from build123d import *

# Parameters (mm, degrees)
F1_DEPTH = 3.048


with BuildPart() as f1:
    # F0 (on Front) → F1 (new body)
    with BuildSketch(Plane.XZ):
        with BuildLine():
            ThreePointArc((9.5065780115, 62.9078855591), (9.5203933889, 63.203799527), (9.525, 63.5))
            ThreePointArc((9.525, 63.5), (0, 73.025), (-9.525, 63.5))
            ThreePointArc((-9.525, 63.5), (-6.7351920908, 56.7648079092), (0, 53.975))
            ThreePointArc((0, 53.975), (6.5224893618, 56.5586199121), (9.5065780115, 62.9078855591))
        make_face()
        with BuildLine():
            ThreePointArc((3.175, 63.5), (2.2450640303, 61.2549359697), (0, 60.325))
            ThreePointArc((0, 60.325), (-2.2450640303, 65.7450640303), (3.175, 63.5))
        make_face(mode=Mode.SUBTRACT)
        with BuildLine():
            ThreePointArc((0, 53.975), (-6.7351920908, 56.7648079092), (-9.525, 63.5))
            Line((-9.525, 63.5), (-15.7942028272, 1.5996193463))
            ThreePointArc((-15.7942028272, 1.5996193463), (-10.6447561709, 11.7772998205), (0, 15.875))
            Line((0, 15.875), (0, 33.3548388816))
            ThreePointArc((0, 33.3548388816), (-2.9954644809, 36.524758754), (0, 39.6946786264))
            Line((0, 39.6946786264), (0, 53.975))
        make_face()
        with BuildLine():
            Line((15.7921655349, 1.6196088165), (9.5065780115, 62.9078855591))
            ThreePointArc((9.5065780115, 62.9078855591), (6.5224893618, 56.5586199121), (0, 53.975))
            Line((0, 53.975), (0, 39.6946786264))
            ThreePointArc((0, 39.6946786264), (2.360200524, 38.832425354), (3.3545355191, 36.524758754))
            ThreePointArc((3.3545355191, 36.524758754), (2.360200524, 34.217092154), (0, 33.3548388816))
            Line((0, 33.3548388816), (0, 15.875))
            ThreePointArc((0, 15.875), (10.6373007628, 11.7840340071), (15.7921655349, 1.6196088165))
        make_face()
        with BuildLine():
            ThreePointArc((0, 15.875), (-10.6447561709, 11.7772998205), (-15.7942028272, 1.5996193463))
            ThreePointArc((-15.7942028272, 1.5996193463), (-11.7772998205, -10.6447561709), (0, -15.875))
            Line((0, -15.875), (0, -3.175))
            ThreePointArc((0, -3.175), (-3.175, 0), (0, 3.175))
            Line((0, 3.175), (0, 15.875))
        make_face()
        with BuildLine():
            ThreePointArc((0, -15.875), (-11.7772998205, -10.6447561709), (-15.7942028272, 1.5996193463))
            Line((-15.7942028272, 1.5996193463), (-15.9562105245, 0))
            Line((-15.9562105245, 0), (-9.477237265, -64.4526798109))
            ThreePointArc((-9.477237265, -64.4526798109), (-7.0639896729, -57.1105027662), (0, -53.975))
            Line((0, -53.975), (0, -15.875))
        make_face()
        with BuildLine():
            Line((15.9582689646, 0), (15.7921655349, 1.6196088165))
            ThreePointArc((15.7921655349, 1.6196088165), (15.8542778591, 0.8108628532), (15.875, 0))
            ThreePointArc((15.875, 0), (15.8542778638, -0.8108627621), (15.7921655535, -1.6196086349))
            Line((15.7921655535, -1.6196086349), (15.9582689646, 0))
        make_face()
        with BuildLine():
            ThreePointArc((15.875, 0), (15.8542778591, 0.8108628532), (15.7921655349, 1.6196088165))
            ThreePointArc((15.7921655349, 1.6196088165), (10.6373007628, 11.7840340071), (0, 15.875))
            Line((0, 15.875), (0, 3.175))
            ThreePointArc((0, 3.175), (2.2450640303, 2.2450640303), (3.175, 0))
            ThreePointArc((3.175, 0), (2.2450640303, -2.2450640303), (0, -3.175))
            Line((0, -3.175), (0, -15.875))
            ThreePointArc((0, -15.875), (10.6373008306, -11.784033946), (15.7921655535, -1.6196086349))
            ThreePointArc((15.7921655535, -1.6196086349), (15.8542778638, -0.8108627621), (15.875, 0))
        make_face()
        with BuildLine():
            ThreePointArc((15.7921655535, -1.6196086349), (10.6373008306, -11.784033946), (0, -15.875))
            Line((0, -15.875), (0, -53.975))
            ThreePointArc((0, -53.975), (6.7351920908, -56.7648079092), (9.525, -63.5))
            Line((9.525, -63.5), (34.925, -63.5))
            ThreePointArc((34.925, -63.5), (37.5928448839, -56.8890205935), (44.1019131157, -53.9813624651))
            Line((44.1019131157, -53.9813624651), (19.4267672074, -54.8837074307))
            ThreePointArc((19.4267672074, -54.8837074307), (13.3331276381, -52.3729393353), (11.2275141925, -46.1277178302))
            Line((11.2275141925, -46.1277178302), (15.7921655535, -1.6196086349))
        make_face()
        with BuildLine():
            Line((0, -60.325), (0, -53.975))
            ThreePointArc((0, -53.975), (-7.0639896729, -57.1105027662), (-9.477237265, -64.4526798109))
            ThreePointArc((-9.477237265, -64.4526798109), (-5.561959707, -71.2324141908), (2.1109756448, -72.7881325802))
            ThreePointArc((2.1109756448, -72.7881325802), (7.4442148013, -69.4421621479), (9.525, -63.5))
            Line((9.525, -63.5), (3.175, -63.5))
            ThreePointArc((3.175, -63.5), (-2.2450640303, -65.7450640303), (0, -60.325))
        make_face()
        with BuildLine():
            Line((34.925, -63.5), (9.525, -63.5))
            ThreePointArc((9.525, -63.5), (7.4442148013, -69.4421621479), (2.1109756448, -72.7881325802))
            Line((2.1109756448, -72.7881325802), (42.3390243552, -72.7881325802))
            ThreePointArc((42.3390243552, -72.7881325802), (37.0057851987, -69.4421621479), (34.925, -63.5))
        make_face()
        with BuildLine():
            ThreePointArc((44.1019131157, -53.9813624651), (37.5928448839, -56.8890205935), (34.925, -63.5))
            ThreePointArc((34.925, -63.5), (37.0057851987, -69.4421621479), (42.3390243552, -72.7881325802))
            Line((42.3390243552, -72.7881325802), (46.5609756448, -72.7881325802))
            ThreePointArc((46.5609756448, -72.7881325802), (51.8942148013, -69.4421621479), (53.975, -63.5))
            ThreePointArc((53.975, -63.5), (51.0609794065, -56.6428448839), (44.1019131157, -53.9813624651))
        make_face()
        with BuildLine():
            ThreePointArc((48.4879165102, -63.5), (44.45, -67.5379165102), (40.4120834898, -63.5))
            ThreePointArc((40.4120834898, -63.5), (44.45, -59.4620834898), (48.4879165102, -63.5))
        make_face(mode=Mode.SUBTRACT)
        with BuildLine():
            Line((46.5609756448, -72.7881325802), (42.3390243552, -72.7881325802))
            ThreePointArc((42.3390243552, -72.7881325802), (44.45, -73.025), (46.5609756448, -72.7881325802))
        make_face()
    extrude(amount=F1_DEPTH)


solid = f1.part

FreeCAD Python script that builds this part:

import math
import FreeCAD as App
import Part
import Sketcher

V = App.Vector
Q = App.Units.Quantity

doc = App.newDocument("Part")
body = doc.addObject("PartDesign::Body", "Body")

# Sketch on XZ plane
sketch1 = doc.addObject("Sketcher::SketchObject", "Sketch")
body.addObject(sketch1)
sketch1.AttachmentSupport = (doc.XZ_Plane, [""])
sketch1.MapMode = "FlatFace"
sketch1.addGeometry([
    Part.LineSegment(V(-16, 0, 0), V(-9.5, -64.5, 0)),  # 0
    Part.ArcOfCircle(Part.Circle(V(0, -63.5, 0), V(0, 0, 1), 9.5), math.radians(-174), math.radians(-77)),  # 1
    Part.LineSegment(V(2.1, -72.8, 0), V(42.3, -72.8, 0)),  # 2
    Part.ArcOfCircle(Part.Circle(V(44.5, -63.5, 0), V(0, 0, 1), 9.5), math.radians(-103), math.radians(-77)),  # 3
    Part.ArcOfCircle(Part.Circle(V(44.5, -63.5, 0), V(0, 0, 1), 9.5), math.radians(-77), math.radians(0)),  # 4
    Part.ArcOfCircle(Part.Circle(V(44.5, -63.5, 0), V(0, 0, 1), 9.5), math.radians(0), math.radians(92)),  # 5
    Part.LineSegment(V(44.1, -54, 0), V(19.4, -54.9, 0)),  # 6
    Part.ArcOfCircle(Part.Circle(V(19.1, -46.9, 0), V(0, 0, 1), 8), math.radians(174), math.radians(272)),  # 7
    Part.LineSegment(V(11.2, -46.1, 0), V(15.8, -1.6, 0)),  # 8
    Part.LineSegment(V(15.8, -1.6, 0), V(16, 0, 0)),  # 9
    Part.LineSegment(V(16, 0, 0), V(15.8, 1.6, 0)),  # 10
    Part.LineSegment(V(15.8, 1.6, 0), V(9.5, 62.9, 0)),  # 11
    Part.ArcOfCircle(Part.Circle(V(0, 63.5, 0), V(0, 0, 1), 9.5), math.radians(-3.56), math.radians(0)),  # 12
    Part.ArcOfCircle(Part.Circle(V(0, 63.5, 0), V(0, 0, 1), 9.5), math.radians(0), math.radians(180)),  # 13
    Part.LineSegment(V(-9.5, 63.5, 0), V(-15.8, 1.6, 0)),  # 14
    Part.LineSegment(V(-15.8, 1.6, 0), V(-16, 0, 0)),  # 15
    Part.ArcOfCircle(Part.Circle(V(0.2, 36.5, 0), V(0, 0, 1), 3.2), math.radians(-93), math.radians(0)),  # 16
    Part.ArcOfCircle(Part.Circle(V(0.2, 36.5, 0), V(0, 0, 1), 3.2), math.radians(93), math.radians(267)),  # 17
    Part.ArcOfCircle(Part.Circle(V(0.2, 36.5, 0), V(0, 0, 1), 3.2), math.radians(0), math.radians(93)),  # 18
    Part.ArcOfCircle(Part.Circle(V(0, -63.5, 0), V(0, 0, 1), 9.5), math.radians(0), math.radians(90)),  # 19
    Part.LineSegment(V(9.5, -63.5, 0), V(3.2, -63.5, 0)),  # 20
    Part.ArcOfCircle(Part.Circle(V(0, -63.5, 0), V(0, 0, 1), 3.2), math.radians(90), math.radians(360)),  # 21
    Part.LineSegment(V(0, -60.3, 0), V(0, -54, 0)),  # 22
    Part.Circle(V(44.5, -63.5, 0), V(0, 0, 1), 4),  # 23
    Part.ArcOfCircle(Part.Circle(V(0, 0, 0), V(0, 0, 1), 3.2), math.radians(90), math.radians(270)),  # 24
    Part.ArcOfCircle(Part.Circle(V(0, 0, 0), V(0, 0, 1), 3.2), math.radians(0), math.radians(90)),  # 25
    Part.ArcOfCircle(Part.Circle(V(0, 0, 0), V(0, 0, 1), 3.2), math.radians(-90), math.radians(0)),  # 26
    Part.ArcOfCircle(Part.Circle(V(0, 63.5, 0), V(0, 0, 1), 3.2), math.radians(0), math.radians(270)),  # 27
    Part.ArcOfCircle(Part.Circle(V(0, 63.5, 0), V(0, 0, 1), 3.2), math.radians(-90), math.radians(0)),  # 28
], False)
sketch1.addConstraint([
    Sketcher.Constraint("Tangent", 0, 2, 1, 1),
    Sketcher.Constraint("Coincident", 1, 2, 2, 1),
    Sketcher.Constraint("Coincident", 2, 2, 3, 1),
    Sketcher.Constraint("Tangent", 3, 2, 4, 1),
    Sketcher.Constraint("Tangent", 4, 2, 5, 1),
    Sketcher.Constraint("Tangent", 5, 2, 6, 1),
    Sketcher.Constraint("Tangent", 6, 2, 7, 2),
    Sketcher.Constraint("Tangent", 7, 1, 8, 1),
    Sketcher.Constraint("Coincident", 8, 2, 9, 1),
    Sketcher.Constraint("Coincident", 9, 2, 10, 1),
    Sketcher.Constraint("Coincident", 10, 2, 11, 1),
    Sketcher.Constraint("Coincident", 11, 2, 12, 1),
    Sketcher.Constraint("Tangent", 12, 2, 13, 1),
    Sketcher.Constraint("Coincident", 13, 2, 14, 1),
    Sketcher.Constraint("Coincident", 14, 2, 15, 1),
    Sketcher.Constraint("Coincident", 15, 2, 0, 1),
    Sketcher.Constraint("Tangent", 16, 1, 17, 2),
    Sketcher.Constraint("Tangent", 17, 1, 18, 2),
    Sketcher.Constraint("Tangent", 18, 1, 16, 2),
    Sketcher.Constraint("Coincident", 19, 1, 20, 1),
    Sketcher.Constraint("Coincident", 20, 2, 21, 2),
    Sketcher.Constraint("Coincident", 21, 1, 22, 1),
    Sketcher.Constraint("Coincident", 22, 2, 19, 2),
    Sketcher.Constraint("Tangent", 24, 1, 25, 2),
    Sketcher.Constraint("Tangent", 25, 1, 26, 2),
    Sketcher.Constraint("Tangent", 26, 1, 24, 2),
    Sketcher.Constraint("Tangent", 27, 1, 28, 2),
    Sketcher.Constraint("Coincident", 28, 1, 27, 2),
    Sketcher.Constraint("Horizontal", 2),
    Sketcher.Constraint("Horizontal", 20),
    Sketcher.Constraint("Vertical", 22),
    Sketcher.Constraint("Coincident", 24, 3, -1, 1),
    Sketcher.Constraint("Coincident", 5, 3, 3, 3),
    Sketcher.Constraint("Coincident", 19, 3, 1, 3),
    Sketcher.Constraint("Coincident", 21, 3, 1, 3),
    Sketcher.Constraint("Coincident", 23, 3, 3, 3),
    Sketcher.Constraint("Coincident", 27, 3, 12, 3),
    Sketcher.Constraint("Equal", 1, 3),
    Sketcher.Constraint("Equal", 5, 12),
    Sketcher.Constraint("Equal", 12, 13),
    Sketcher.Constraint("Equal", 13, 19),
    Sketcher.Constraint("Equal", 18, 21),
    Sketcher.Constraint("Equal", 21, 24),
    Sketcher.Constraint("Equal", 26, 27),
    Sketcher.Constraint("Symmetric", 1, 3, 12, 3, -1, 1),
    Sketcher.Constraint("Symmetric", 12, 2, 13, 2, -2),
    Sketcher.Constraint("Symmetric", 8, 2, 10, 2, -1),
    Sketcher.Constraint("PointOnObject", 9, 2, -1),
    Sketcher.Constraint("PointOnObject", 15, 2, -1),
    Sketcher.Constraint("PointOnObject", 16, 1, -2),
    Sketcher.Constraint("PointOnObject", 17, 1, -2),
    Sketcher.Constraint("PointOnObject", 21, 1, -2),
    Sketcher.Constraint("PointOnObject", 24, 1, -2),
    Sketcher.Constraint("PointOnObject", 25, 1, -1),
    Sketcher.Constraint("PointOnObject", 26, 1, -2),
    Sketcher.Constraint("PointOnObject", 28, 1, -2),
    Sketcher.Constraint("Parallel", 8, 9),
    Sketcher.Constraint("Parallel", 10, 11),
    Sketcher.Constraint("Parallel", 14, 15),
    Sketcher.Constraint("Horizontal", 1, 3, 3, 3),
    Sketcher.Constraint("Horizontal", 2, 2, 3, 2),
    Sketcher.Constraint("Horizontal", 23, 3, 4, 2),
    Sketcher.Constraint("Horizontal", 28, 3, 12, 2),
    Sketcher.Constraint("Horizontal", 17, 3, 18, 1),
    Sketcher.Constraint("Horizontal", 4, 2, 19, 1),
    Sketcher.Constraint("Horizontal", 13, 2, 27, 1),
    Sketcher.Constraint("Radius", 1, Q("0.375 in")),
    Sketcher.Constraint("Radius", 7, Q("0.313 in")),
    Sketcher.Constraint("Radius", 16, Q("0.125 in")),
    Sketcher.Constraint("DistanceY", 1, 3, 12, 3, Q("5 in")),
    Sketcher.Constraint("DistanceX", -1, 1, 3, 3, Q("1.75 in")),
    Sketcher.Constraint("Diameter", 23, 8.075833),
    Sketcher.Constraint("DistanceY", 16, 1, 16, 3, Q("0.1248 in")),
    Sketcher.Constraint("DistanceX", 2, 1, 2, 2, 40.228049),
    Sketcher.Constraint("DistanceY", 7, 3, 7, 1, 0.8111),
    Sketcher.Constraint("Distance", 6, 24.691639),
    Sketcher.Constraint("Distance", 11, 61.609751),
    Sketcher.Constraint("Distance", 14, 62.21704),
    Sketcher.Constraint("DistanceX", -1, 1, 7, 3, 19.136231),
    Sketcher.Constraint("DistanceY", -1, 1, 16, 3, 36.524759),
    Sketcher.Constraint("DistanceY", 0, 2, -1, 1, 64.45268),
])
pad1 = doc.addObject("PartDesign::Pad", "Pad")
body.addObject(pad1)
pad1.Profile = sketch1
pad1.Length = Q("0.12 in")

doc.recompute()
